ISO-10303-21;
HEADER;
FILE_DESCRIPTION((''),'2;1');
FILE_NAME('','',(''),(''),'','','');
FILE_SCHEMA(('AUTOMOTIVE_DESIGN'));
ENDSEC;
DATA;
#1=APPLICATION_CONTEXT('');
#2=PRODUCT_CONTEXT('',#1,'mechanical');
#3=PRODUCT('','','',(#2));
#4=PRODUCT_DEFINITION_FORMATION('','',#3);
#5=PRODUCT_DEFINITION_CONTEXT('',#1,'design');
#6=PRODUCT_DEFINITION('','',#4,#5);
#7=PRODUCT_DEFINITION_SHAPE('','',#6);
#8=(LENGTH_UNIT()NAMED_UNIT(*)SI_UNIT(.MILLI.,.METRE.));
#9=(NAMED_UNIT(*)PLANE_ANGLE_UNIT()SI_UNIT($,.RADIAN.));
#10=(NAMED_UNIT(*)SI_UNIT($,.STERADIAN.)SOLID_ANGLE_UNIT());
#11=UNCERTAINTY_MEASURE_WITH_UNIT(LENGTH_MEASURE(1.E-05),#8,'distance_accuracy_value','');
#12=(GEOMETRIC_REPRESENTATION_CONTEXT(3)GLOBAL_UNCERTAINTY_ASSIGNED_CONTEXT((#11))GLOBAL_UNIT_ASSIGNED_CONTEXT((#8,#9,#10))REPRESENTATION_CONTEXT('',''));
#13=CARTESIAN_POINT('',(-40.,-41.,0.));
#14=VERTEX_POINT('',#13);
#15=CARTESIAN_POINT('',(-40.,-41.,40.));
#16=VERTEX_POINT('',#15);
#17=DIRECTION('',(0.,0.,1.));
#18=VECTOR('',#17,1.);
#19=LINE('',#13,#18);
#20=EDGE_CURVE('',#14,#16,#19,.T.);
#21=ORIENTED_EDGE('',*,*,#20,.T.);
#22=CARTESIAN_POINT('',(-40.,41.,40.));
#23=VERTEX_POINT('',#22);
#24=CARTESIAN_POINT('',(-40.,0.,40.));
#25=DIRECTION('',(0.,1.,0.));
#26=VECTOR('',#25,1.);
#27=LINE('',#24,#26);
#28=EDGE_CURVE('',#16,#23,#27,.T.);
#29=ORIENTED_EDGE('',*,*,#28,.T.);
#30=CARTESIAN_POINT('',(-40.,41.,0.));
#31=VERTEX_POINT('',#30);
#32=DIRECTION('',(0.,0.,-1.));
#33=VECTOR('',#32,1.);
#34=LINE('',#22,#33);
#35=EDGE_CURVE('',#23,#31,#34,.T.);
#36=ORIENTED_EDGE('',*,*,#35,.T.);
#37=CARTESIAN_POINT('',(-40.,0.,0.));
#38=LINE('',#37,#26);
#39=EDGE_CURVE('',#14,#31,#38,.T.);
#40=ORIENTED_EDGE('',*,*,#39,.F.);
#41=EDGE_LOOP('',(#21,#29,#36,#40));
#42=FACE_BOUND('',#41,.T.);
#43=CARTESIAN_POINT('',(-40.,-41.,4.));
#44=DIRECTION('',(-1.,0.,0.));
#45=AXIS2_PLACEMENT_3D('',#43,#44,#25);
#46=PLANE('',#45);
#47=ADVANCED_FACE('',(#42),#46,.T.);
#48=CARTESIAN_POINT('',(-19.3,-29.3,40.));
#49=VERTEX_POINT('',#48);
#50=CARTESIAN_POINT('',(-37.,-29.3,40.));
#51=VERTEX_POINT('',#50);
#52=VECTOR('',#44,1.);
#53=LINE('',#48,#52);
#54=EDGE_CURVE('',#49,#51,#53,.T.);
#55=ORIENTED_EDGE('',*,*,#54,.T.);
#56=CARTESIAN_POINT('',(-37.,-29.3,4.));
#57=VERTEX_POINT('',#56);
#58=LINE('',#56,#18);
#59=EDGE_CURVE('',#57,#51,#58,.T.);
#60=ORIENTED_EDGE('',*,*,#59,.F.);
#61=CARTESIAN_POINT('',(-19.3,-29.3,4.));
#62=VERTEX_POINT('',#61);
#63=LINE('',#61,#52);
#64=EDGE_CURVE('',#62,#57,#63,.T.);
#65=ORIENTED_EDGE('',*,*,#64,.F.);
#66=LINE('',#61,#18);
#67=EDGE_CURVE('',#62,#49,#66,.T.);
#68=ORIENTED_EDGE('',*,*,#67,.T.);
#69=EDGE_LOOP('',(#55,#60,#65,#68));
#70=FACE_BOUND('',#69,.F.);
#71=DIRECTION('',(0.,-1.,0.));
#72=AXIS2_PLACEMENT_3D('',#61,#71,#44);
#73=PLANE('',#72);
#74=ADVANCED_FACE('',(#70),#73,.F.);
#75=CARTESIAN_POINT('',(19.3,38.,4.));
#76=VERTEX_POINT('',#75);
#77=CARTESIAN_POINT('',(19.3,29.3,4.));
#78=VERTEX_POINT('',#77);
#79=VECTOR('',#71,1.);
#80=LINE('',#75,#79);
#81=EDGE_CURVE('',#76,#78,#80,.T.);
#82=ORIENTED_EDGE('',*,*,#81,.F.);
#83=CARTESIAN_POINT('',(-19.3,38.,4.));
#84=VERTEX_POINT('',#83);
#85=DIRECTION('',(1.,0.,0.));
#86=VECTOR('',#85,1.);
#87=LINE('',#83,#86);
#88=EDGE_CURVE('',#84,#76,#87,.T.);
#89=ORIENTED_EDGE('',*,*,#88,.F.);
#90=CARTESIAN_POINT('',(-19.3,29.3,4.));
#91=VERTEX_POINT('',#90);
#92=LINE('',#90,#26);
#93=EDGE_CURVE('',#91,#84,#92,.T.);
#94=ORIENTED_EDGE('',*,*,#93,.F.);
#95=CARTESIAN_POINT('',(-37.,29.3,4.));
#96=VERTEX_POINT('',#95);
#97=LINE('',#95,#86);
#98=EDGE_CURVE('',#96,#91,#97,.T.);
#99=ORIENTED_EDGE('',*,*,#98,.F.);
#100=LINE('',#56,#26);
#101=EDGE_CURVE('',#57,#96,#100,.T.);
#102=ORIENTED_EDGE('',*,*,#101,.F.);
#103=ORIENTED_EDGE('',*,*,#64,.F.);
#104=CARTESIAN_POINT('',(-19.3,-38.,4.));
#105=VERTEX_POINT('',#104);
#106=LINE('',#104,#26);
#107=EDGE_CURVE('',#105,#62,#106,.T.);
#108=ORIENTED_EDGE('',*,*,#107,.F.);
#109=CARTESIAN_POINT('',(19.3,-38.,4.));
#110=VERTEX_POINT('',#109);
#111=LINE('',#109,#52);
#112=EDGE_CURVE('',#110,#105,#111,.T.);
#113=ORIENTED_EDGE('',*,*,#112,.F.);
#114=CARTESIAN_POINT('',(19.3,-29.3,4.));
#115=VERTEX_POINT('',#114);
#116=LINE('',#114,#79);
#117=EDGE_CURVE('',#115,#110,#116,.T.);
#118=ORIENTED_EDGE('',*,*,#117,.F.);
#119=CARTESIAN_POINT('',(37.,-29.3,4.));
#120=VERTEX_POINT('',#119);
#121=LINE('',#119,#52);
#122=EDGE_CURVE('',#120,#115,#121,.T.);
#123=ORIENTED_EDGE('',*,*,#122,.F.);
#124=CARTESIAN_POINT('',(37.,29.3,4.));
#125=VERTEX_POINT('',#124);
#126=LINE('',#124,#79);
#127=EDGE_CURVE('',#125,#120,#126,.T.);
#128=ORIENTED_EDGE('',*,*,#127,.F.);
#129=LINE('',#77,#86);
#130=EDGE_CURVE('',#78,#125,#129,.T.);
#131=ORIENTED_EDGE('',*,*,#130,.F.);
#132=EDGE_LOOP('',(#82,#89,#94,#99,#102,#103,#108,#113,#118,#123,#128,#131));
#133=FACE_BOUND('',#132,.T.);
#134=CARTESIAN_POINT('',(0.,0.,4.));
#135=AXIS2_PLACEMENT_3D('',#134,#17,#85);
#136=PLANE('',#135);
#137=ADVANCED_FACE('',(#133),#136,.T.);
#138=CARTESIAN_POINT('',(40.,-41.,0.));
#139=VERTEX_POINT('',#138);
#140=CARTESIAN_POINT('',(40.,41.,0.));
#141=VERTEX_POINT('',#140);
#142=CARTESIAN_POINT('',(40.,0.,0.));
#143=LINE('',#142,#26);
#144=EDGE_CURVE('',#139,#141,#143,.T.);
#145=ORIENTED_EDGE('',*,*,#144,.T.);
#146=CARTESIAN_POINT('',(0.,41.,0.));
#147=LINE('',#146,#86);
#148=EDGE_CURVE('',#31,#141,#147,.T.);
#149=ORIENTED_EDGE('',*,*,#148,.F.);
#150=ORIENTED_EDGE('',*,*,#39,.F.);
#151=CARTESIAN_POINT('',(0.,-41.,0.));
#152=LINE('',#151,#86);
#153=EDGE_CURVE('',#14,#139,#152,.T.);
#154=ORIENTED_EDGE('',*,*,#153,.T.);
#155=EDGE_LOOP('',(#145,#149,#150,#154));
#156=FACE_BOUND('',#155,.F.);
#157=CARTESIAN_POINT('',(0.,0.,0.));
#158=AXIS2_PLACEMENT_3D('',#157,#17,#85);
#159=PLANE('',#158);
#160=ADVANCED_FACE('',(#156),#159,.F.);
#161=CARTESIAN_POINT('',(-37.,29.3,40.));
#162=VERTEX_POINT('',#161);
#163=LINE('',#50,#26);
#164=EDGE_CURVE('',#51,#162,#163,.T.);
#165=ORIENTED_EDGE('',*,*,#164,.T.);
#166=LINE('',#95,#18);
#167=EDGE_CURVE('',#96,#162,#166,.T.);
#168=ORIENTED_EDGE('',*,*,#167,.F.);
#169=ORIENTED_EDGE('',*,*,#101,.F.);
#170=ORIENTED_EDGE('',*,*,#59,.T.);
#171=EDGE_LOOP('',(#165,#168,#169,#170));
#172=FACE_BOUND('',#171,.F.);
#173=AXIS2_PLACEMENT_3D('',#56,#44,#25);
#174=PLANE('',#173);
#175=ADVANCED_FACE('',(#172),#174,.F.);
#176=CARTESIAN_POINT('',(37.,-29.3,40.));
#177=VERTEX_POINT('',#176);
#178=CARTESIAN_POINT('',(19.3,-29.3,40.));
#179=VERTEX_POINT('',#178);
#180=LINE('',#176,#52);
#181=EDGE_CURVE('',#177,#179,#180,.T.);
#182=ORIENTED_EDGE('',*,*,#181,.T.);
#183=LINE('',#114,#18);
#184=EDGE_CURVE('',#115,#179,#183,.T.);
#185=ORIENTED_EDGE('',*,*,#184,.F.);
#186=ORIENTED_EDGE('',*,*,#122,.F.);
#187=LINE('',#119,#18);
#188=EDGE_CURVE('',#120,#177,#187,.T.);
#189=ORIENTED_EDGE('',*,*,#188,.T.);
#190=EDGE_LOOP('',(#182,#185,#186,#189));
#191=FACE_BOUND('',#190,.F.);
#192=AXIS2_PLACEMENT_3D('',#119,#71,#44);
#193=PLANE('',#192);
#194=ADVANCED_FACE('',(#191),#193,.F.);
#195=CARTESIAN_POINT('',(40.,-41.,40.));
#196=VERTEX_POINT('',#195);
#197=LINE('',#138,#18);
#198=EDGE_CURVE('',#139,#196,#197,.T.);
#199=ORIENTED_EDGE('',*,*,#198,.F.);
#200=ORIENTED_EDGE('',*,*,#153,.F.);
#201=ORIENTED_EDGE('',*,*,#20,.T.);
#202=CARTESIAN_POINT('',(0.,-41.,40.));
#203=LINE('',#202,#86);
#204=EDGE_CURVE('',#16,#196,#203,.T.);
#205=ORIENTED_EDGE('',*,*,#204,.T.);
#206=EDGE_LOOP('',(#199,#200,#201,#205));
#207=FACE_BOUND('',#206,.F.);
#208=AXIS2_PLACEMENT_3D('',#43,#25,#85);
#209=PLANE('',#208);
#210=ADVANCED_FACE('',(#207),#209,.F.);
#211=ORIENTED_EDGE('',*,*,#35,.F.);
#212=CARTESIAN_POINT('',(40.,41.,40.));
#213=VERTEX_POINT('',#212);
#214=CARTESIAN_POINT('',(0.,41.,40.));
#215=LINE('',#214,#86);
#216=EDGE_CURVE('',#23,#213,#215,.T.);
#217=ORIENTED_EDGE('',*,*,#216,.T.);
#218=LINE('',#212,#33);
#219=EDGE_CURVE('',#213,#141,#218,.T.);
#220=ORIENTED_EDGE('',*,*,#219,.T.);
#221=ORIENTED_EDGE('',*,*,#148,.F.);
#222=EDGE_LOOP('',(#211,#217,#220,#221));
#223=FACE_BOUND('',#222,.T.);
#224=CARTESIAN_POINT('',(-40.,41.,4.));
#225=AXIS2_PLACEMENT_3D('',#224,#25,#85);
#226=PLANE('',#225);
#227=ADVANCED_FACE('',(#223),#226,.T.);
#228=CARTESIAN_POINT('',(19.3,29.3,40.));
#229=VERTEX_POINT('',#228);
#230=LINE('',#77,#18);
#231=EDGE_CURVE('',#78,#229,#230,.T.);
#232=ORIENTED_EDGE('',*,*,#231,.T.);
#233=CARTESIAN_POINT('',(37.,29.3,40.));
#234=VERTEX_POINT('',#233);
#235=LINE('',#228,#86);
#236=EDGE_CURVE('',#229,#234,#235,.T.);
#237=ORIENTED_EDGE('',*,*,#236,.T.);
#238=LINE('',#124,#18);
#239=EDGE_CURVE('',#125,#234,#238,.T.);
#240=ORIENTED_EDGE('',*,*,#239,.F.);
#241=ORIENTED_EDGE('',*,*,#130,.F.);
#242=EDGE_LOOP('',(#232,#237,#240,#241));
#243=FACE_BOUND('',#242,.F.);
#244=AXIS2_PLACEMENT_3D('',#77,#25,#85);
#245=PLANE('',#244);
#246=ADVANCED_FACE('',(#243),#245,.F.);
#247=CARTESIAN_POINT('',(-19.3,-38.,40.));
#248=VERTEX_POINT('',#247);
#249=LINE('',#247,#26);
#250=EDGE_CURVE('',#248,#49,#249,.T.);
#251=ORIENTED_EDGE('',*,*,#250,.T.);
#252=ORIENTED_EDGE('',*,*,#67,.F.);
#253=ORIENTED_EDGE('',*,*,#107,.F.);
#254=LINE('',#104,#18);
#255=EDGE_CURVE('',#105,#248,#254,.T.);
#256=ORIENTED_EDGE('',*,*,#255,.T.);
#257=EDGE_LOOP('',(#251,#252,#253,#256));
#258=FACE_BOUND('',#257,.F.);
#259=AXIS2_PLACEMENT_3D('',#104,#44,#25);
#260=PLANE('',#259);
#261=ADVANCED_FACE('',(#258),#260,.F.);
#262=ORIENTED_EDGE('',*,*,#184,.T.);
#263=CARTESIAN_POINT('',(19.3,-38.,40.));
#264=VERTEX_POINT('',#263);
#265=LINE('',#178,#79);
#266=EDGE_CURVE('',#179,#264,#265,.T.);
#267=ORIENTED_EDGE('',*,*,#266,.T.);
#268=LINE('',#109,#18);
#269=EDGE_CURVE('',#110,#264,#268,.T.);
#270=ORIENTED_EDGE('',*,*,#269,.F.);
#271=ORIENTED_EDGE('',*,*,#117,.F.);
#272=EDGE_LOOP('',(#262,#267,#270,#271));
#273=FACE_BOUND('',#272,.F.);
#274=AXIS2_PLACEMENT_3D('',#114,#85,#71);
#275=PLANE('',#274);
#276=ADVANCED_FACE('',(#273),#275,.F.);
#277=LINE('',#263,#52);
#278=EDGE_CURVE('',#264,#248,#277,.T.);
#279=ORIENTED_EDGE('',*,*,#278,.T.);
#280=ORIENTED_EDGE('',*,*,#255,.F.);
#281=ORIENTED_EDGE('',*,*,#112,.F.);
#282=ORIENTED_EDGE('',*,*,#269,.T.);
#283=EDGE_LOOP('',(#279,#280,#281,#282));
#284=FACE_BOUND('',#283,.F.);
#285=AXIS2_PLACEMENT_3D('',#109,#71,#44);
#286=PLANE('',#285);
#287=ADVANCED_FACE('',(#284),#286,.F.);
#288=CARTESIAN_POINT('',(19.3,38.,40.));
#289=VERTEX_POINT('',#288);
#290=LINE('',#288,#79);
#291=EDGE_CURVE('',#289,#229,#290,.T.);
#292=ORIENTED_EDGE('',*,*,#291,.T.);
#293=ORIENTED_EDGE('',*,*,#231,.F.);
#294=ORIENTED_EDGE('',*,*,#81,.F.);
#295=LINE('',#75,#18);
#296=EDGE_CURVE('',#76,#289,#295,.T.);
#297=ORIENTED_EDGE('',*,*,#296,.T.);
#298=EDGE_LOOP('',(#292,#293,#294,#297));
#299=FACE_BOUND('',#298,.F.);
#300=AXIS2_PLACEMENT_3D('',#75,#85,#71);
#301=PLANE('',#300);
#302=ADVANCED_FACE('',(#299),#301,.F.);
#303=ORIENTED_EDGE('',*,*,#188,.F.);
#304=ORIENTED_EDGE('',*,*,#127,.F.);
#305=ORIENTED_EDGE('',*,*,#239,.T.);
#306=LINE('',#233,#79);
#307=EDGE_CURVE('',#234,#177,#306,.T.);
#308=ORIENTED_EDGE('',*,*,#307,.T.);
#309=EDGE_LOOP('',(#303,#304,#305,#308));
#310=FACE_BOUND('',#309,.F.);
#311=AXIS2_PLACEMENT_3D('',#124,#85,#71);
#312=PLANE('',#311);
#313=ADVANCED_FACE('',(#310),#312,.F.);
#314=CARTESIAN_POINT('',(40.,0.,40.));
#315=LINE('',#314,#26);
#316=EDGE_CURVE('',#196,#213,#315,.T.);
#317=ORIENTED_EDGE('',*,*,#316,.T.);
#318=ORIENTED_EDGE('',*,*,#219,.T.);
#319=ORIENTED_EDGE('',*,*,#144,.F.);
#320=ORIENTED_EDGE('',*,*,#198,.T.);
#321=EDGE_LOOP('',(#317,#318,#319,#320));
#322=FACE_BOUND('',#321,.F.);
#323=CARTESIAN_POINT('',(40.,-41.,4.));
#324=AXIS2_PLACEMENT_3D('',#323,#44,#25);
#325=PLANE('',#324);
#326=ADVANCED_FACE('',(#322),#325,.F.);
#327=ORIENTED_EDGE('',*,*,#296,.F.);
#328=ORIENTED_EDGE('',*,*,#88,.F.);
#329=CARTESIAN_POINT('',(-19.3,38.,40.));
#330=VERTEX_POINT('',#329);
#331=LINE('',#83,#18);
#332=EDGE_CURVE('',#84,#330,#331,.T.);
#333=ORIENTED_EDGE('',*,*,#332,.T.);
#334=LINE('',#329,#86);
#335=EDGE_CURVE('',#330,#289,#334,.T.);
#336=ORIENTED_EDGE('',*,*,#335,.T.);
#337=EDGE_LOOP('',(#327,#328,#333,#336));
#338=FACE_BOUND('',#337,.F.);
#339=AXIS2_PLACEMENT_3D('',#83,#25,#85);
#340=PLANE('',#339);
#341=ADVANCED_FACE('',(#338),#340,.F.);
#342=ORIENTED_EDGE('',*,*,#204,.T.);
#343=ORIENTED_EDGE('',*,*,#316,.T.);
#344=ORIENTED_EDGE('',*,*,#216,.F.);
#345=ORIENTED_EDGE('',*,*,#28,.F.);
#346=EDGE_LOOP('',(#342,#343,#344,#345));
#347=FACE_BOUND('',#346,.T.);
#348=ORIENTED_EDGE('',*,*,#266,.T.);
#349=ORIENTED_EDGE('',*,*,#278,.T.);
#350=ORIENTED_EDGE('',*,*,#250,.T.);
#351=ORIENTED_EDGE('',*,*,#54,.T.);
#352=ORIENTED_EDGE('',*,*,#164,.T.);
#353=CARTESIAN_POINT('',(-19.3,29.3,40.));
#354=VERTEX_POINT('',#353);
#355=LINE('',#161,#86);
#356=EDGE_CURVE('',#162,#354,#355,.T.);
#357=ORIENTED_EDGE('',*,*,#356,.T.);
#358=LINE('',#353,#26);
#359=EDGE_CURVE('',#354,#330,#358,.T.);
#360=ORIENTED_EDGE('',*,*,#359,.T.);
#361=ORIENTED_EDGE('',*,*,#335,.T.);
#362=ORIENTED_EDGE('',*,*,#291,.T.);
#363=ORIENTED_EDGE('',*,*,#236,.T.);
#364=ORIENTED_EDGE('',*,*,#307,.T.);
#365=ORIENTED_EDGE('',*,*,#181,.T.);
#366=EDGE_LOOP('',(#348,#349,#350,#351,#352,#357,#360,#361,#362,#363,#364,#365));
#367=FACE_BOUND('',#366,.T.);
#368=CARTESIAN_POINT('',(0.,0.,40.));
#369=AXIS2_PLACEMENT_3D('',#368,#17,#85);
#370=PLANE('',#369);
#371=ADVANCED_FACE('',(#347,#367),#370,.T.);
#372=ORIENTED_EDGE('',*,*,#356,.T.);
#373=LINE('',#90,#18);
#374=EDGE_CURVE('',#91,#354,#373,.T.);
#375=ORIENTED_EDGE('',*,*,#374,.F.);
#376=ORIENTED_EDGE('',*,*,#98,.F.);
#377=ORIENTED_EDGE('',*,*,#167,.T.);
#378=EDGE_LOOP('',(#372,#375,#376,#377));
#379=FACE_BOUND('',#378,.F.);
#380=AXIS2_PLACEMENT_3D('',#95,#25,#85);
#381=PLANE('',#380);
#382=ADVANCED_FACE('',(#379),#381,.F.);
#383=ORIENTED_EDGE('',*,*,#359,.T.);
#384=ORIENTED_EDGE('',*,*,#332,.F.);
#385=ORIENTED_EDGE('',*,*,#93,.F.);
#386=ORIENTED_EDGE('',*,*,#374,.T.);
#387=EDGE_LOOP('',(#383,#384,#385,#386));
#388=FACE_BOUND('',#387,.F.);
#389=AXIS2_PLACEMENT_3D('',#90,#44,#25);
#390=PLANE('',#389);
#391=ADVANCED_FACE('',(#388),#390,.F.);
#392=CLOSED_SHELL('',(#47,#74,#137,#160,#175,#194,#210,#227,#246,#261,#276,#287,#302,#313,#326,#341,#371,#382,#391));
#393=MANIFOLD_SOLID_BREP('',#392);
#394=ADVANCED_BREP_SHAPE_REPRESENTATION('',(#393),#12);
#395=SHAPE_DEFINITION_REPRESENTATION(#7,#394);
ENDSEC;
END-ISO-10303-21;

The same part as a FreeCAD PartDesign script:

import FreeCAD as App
import Part
import Sketcher
Q = App.Units.Quantity

doc = App.newDocument("Part")
body = doc.addObject("PartDesign::Body", "Body")

sketch1 = body.newObject("Sketcher::SketchObject", "Sketch")
sketch1.AttachmentSupport = (doc.getObject("XY_Plane"), [""])
sketch1.MapMode = "FlatFace"
sketch1.addGeometry([
    Part.LineSegment(App.Vector(-40, 41, 0), App.Vector(-40, -41, 0)),
    Part.LineSegment(App.Vector(-40, -41, 0), App.Vector(40, -41, 0)),
    Part.LineSegment(App.Vector(40, -41, 0), App.Vector(40, 41, 0)),
    Part.LineSegment(App.Vector(40, 41, 0), App.Vector(-40, 41, 0)),
], False)
sketch1.addConstraint([
    Sketcher.Constraint("Coincident", 0, 2, 1, 1),
    Sketcher.Constraint("Coincident", 1, 2, 2, 1),
    Sketcher.Constraint("Coincident", 2, 2, 3, 1),
    Sketcher.Constraint("Coincident", 3, 2, 0, 1),
    Sketcher.Constraint("Vertical", 0),
    Sketcher.Constraint("Horizontal", 1),
    Sketcher.Constraint("Vertical", 2),
    Sketcher.Constraint("Horizontal", 3),
    Sketcher.Constraint("Symmetric", 0, 2, 2, 2, -1, 1),
    Sketcher.Constraint("DistanceX", 1, 1, 1, 2, Q("80 mm")),
    Sketcher.Constraint("DistanceY", 0, 2, 0, 1, Q("82 mm")),
])
pad1 = body.newObject("PartDesign::Pad", "Pad")
pad1.Profile = sketch1
pad1.Length = 4

sketch2 = body.newObject("Sketcher::SketchObject", "Sketch001")
sketch2.AttachmentSupport = (doc.getObject("XY_Plane"), [""])
sketch2.MapMode = "FlatFace"
sketch2.AttachmentOffset = App.Placement(App.Vector(0, 0, 4), App.Rotation())
sketch2.addGeometry([
    Part.LineSegment(App.Vector(-40, 41, 0), App.Vector(-40, -41, 0)),
    Part.LineSegment(App.Vector(-40, -41, 0), App.Vector(40, -41, 0)),
    Part.LineSegment(App.Vector(40, -41, 0), App.Vector(40, 41, 0)),
    Part.LineSegment(App.Vector(40, 41, 0), App.Vector(-40, 41, 0)),
    Part.LineSegment(App.Vector(-37, -29, 0), App.Vector(-37, 29, 0)),
    Part.LineSegment(App.Vector(-37, 29, 0), App.Vector(-19, 29, 0)),
    Part.LineSegment(App.Vector(-19, 29, 0), App.Vector(-19, 38, 0)),
    Part.LineSegment(App.Vector(-19, 38, 0), App.Vector(19, 38, 0)),
    Part.LineSegment(App.Vector(19, 38, 0), App.Vector(19, 29, 0)),
    Part.LineSegment(App.Vector(19, 29, 0), App.Vector(37, 29, 0)),
    Part.LineSegment(App.Vector(37, 29, 0), App.Vector(37, -29, 0)),
    Part.LineSegment(App.Vector(37, -29, 0), App.Vector(19, -29, 0)),
    Part.LineSegment(App.Vector(19, -29, 0), App.Vector(19, -38, 0)),
    Part.LineSegment(App.Vector(19, -38, 0), App.Vector(-19, -38, 0)),
    Part.LineSegment(App.Vector(-19, -38, 0), App.Vector(-19, -29, 0)),
    Part.LineSegment(App.Vector(-19, -29, 0), App.Vector(-37, -29, 0)),
], False)
sketch2.addConstraint([
    Sketcher.Constraint("Coincident", 0, 2, 1, 1),
    Sketcher.Constraint("Coincident", 1, 2, 2, 1),
    Sketcher.Constraint("Coincident", 2, 2, 3, 1),
    Sketcher.Constraint("Coincident", 3, 2, 0, 1),
    Sketcher.Constraint("Coincident", 4, 2, 5, 1),
    Sketcher.Constraint("Coincident", 5, 2, 6, 1),
    Sketcher.Constraint("Coincident", 6, 2, 7, 1),
    Sketcher.Constraint("Coincident", 7, 2, 8, 1),
    Sketcher.Constraint("Coincident", 8, 2, 9, 1),
    Sketcher.Constraint("Coincident", 9, 2, 10, 1),
    Sketcher.Constraint("Coincident", 10, 2, 11, 1),
    Sketcher.Constraint("Coincident", 11, 2, 12, 1),
    Sketcher.Constraint("Coincident", 12, 2, 13, 1),
    Sketcher.Constraint("Coincident", 13, 2, 14, 1),
    Sketcher.Constraint("Coincident", 14, 2, 15, 1),
    Sketcher.Constraint("Coincident", 15, 2, 4, 1),
    Sketcher.Constraint("Vertical", 0),
    Sketcher.Constraint("Horizontal", 1),
    Sketcher.Constraint("Vertical", 2),
    Sketcher.Constraint("Horizontal", 3),
    Sketcher.Constraint("Vertical", 4),
    Sketcher.Constraint("Horizontal", 5),
    Sketcher.Constraint("Vertical", 6),
    Sketcher.Constraint("Horizontal", 7),
    Sketcher.Constraint("Vertical", 8),
    Sketcher.Constraint("Horizontal", 9),
    Sketcher.Constraint("Vertical", 10),
    Sketcher.Constraint("Horizontal", 11),
    Sketcher.Constraint("Vertical", 12),
    Sketcher.Constraint("Horizontal", 13),
    Sketcher.Constraint("Vertical", 14),
    Sketcher.Constraint("Horizontal", 15),
    Sketcher.Constraint("Symmetric", 0, 2, 2, 2, -1, 1),
    Sketcher.Constraint("Symmetric", 4, 2, 10, 2, -1, 1),
    Sketcher.Constraint("Symmetric", 6, 2, 12, 2, -1, 1),
    Sketcher.Constraint("Symmetric", 8, 2, 14, 2, -1, 1),
    Sketcher.Constraint("Symmetric", 5, 2, 8, 2, -2),
    Sketcher.Constraint("DistanceX", 1, 1, 1, 2, Q("80 mm")),
    Sketcher.Constraint("DistanceY", 0, 2, 0, 1, Q("82 mm")),
    Sketcher.Constraint("DistanceX", 5, 1, 5, 2, Q("17.7 mm")),
    Sketcher.Constraint("DistanceX", 7, 1, 7, 2, Q("38.6 mm")),
    Sketcher.Constraint("DistanceY", 4, 1, 4, 2, Q("58.6 mm")),
    Sketcher.Constraint("DistanceY", 6, 1, 6, 2, Q("8.7 mm")),
])
pad2 = body.newObject("PartDesign::Pad", "Pad001")
pad2.Profile = sketch2
pad2.Length = 36

doc.recompute()
